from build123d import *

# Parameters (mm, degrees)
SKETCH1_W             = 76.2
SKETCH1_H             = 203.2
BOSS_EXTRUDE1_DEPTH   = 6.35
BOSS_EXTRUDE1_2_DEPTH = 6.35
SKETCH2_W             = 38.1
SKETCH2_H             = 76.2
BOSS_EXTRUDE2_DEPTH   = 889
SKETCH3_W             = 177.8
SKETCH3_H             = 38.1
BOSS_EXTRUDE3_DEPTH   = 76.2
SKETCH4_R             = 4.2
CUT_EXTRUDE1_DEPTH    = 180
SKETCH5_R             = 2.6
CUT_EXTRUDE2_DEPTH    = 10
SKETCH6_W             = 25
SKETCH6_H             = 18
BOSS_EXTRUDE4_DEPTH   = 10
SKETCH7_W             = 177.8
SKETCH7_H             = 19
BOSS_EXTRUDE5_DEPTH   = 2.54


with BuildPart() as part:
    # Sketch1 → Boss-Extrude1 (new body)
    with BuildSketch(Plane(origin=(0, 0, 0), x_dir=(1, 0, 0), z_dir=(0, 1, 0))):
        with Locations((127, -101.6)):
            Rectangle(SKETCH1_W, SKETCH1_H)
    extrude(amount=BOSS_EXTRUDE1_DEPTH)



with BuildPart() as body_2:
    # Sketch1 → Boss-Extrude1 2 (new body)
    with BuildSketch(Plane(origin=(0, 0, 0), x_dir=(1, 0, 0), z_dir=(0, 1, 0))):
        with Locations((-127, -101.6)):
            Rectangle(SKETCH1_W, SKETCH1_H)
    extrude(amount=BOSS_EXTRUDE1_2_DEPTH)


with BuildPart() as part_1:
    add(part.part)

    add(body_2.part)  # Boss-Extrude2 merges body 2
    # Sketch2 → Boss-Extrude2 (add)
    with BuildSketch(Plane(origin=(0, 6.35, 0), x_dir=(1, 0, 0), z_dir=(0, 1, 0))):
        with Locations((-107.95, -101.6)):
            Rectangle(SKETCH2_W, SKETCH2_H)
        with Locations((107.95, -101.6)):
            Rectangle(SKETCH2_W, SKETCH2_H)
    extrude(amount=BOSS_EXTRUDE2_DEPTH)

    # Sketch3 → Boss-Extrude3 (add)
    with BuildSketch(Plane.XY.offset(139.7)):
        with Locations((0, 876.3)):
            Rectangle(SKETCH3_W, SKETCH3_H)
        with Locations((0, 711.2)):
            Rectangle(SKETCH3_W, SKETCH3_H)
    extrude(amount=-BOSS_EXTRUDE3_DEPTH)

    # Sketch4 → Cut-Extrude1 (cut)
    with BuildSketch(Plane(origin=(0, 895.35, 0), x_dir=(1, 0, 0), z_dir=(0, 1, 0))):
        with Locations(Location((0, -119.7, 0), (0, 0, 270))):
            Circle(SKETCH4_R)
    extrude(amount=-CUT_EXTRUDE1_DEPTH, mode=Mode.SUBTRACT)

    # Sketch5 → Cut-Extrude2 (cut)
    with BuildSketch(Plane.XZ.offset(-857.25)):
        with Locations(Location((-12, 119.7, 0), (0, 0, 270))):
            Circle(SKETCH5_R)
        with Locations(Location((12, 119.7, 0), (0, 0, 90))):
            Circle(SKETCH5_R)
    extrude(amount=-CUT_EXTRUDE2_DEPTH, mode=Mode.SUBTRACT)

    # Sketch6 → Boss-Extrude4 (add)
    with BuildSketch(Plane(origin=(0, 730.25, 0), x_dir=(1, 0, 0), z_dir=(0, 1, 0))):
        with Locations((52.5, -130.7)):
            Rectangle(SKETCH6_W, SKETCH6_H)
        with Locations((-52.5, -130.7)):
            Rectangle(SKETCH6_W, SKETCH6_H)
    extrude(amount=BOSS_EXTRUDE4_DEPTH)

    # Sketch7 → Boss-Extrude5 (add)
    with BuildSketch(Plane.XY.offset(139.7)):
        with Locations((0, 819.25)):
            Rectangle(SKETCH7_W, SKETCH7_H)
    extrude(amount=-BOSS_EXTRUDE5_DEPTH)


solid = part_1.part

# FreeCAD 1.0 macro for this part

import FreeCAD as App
import Part
import Sketcher
from FreeCAD import Vector


def add_polygon(sketch, points):
    """Adds a closed chain of lines whose ends are joined by coincident constraints."""
    first, n = sketch.GeometryCount, len(points)
    for a, b in zip(points, points[1:] + points[:1]):
        sketch.addGeometry(Part.LineSegment(App.Vector(*a, 0), App.Vector(*b, 0)), False)
    for i in range(n):
        sketch.addConstraint(Sketcher.Constraint("Coincident", first + i, 2, first + (i + 1) % n, 1))

doc = App.newDocument("Part")
params = doc.addObject("Spreadsheet::Sheet", "Params")
for row, (alias, value) in enumerate([
    ("sketch1_width", "76.2 mm"),
    ("sketch1_height", "203.2 mm"),
    ("pad1_length", "6.35 mm"),
    ("sketch2_width", "76.2 mm"),
    ("sketch2_height", "203.2 mm"),
    ("pad2_length", "6.35 mm"),
    ("sketch3_width", "38.1 mm"),
    ("sketch3_height", "76.2 mm"),
    ("pad3_length", "889 mm"),
    ("sketch4_width", "177.8 mm"),
    ("sketch4_height", "38.1 mm"),
    ("pad4_length", "76.2 mm"),
    ("sketch5_diameter", "8.4 mm"),
    ("pocket1_length", "180 mm"),
    ("sketch6_diameter", "5.2 mm"),
    ("pocket2_length", "10 mm"),
    ("sketch7_width", "25 mm"),
    ("sketch7_height", "18 mm"),
    ("pad5_length", "10 mm"),
    ("sketch8_height", "19 mm"),
    ("sketch8_width", "177.8 mm"),
    ("pad6_length", "2.54 mm"),
], start=1):
    params.set(f"A{row}", alias)
    params.set(f"B{row}", "=" + value)
    params.setAlias(f"B{row}", alias)

body = doc.addObject("PartDesign::Body", "Body")

sketch1 = doc.addObject("Sketcher::SketchObject", "Sketch")
body.addObject(sketch1)
sketch1.AttachmentSupport = (doc.XZ_Plane, [""])
sketch1.MapMode = "FlatFace"
add_polygon(sketch1, [(89, 0), (89, 203), (165, 203), (165, 0)])
sketch1.addConstraint([
    Sketcher.Constraint("Vertical", 0),
    Sketcher.Constraint("Horizontal", 1),
    Sketcher.Constraint("Vertical", 2),
    Sketcher.Constraint("Horizontal", 3),
    Sketcher.Constraint("PointOnObject", 2, 2, -1),
    Sketcher.Constraint("DistanceX", 1, 1, 1, 2, 76.2),
    Sketcher.Constraint("DistanceY", 0, 1, 0, 2, 203.2),
    Sketcher.Constraint("DistanceX", -1, 1, 0, 2, 88.9),
])
sketch1.setExpression("Constraints[9]", "Params.sketch1_width")
sketch1.setExpression("Constraints[10]", "Params.sketch1_height")
pad1 = doc.addObject("PartDesign::Pad", "Pad")
body.addObject(pad1)
pad1.Profile = sketch1
pad1.setExpression("Length", "Params.pad1_length")
pad1.Reversed = True
body2 = doc.addObject("PartDesign::Body", "Body001")

sketch2 = doc.addObject("Sketcher::SketchObject", "Sketch001")
body2.addObject(sketch2)
sketch2.AttachmentSupport = (doc.getObject("XZ_Plane001"), [""])
sketch2.MapMode = "FlatFace"
add_polygon(sketch2, [(-165, 0), (-165, 203), (-89, 203), (-89, 0)])
sketch2.addConstraint([
    Sketcher.Constraint("Vertical", 0),
    Sketcher.Constraint("Horizontal", 1),
    Sketcher.Constraint("Vertical", 2),
    Sketcher.Constraint("Horizontal", 3),
    Sketcher.Constraint("PointOnObject", 2, 2, -1),
    Sketcher.Constraint("DistanceX", 1, 1, 1, 2, 76.2),
    Sketcher.Constraint("DistanceY", 0, 1, 0, 2, 203.2),
    Sketcher.Constraint("DistanceX", 0, 2, -1, 1, 165.1),
])
sketch2.setExpression("Constraints[9]", "Params.sketch2_width")
sketch2.setExpression("Constraints[10]", "Params.sketch2_height")
pad2 = doc.addObject("PartDesign::Pad", "Pad001")
body2.addObject(pad2)
pad2.Profile = sketch2
pad2.setExpression("Length", "Params.pad2_length")
pad2.Reversed = True
body.AllowCompound = True
doc.recompute()

boolean = doc.addObject("PartDesign::Boolean", "Boolean")
body.addObject(boolean)
boolean.Type = "Fuse"
boolean.addObjects([body2])

sketch3 = doc.addObject("Sketcher::SketchObject", "Sketch002")
body.addObject(sketch3)
sketch3.AttachmentSupport = (doc.XZ_Plane, [""])
sketch3.MapMode = "FlatFace"
sketch3.AttachmentOffset = App.Placement(Vector(0, 0, -6.35), App.Rotation())
add_polygon(sketch3, [(-127, 64), (-127, 140), (-89, 140), (-89, 64)])
add_polygon(sketch3, [(89, 64), (89, 140), (127, 140), (127, 64)])
sketch3.addConstraint([
    Sketcher.Constraint("Vertical", 0),
    Sketcher.Constraint("Horizontal", 1),
    Sketcher.Constraint("Vertical", 2),
    Sketcher.Constraint("Horizontal", 3),
    Sketcher.Constraint("Vertical", 4),
    Sketcher.Constraint("Horizontal", 5),
    Sketcher.Constraint("Vertical", 6),
    Sketcher.Constraint("Horizontal", 7),
    Sketcher.Constraint("Symmetric", 1, 2, 4, 2, -2),
    Sketcher.Constraint("Symmetric", 3, 2, 6, 2, -2),
    Sketcher.Constraint("DistanceX", 1, 1, 1, 2, 38.1),
    Sketcher.Constraint("DistanceY", 0, 1, 0, 2, 76.2),
    Sketcher.Constraint("DistanceX", 0, 2, -1, 1, 127.0),
    Sketcher.Constraint("DistanceY", -1, 1, 0, 2, 139.7),
])
sketch3.setExpression("Constraints[18]", "Params.sketch3_width")
sketch3.setExpression("Constraints[19]", "Params.sketch3_height")
pad3 = doc.addObject("PartDesign::Pad", "Pad002")
body.addObject(pad3)
pad3.Profile = sketch3
pad3.setExpression("Length", "Params.pad3_length")
pad3.Reversed = True

sketch4 = doc.addObject("Sketcher::SketchObject", "Sketch003")
body.addObject(sketch4)
sketch4.AttachmentSupport = (doc.XY_Plane, [""])
sketch4.MapMode = "FlatFace"
sketch4.AttachmentOffset = App.Placement(Vector(0, 0, 139.7), App.Rotation())
add_polygon(sketch4, [(-89, 895), (-89, 857), (89, 857), (89, 895)])
add_polygon(sketch4, [(-89, 730), (-89, 692), (89, 692), (89, 730)])
sketch4.addConstraint([
    Sketcher.Constraint("Vertical", 0),
    Sketcher.Constraint("Horizontal", 1),
    Sketcher.Constraint("Vertical", 2),
    Sketcher.Constraint("Horizontal", 3),
    Sketcher.Constraint("Vertical", 4),
    Sketcher.Constraint("Horizontal", 5),
    Sketcher.Constraint("Vertical", 6),
    Sketcher.Constraint("Horizontal", 7),
    Sketcher.Constraint("Vertical", 3, 2, 4, 2),
    Sketcher.Constraint("Vertical", 2, 2, 5, 2),
    Sketcher.Constraint("Equal", 2, 4),
    Sketcher.Constraint("DistanceX", 1, 1, 1, 2, 177.8),
    Sketcher.Constraint("DistanceY", 0, 2, 0, 1, 38.1),
    Sketcher.Constraint("DistanceY", 6, 2, 1, 2, 127.0),
    Sketcher.Constraint("DistanceX", 0, 2, -1, 1, 88.9),
    Sketcher.Constraint("DistanceY", -1, 1, 0, 2, 857.25),
])
sketch4.setExpression("Constraints[19]", "Params.sketch4_width")
sketch4.setExpression("Constraints[20]", "Params.sketch4_height")
pad4 = doc.addObject("PartDesign::Pad", "Pad003")
body.addObject(pad4)
pad4.Profile = sketch4
pad4.setExpression("Length", "Params.pad4_length")
pad4.Reversed = True

sketch5 = doc.addObject("Sketcher::SketchObject", "Sketch004")
body.addObject(sketch5)
sketch5.AttachmentSupport = (doc.XZ_Plane, [""])
sketch5.MapMode = "FlatFace"
sketch5.AttachmentOffset = App.Placement(Vector(0, 0, -895.35), App.Rotation())
sketch5.addGeometry(Part.Circle(Vector(0, 119.7, 0), Vector(0, 0, 1), 4.2), False)
sketch5.addConstraint([
    Sketcher.Constraint("PointOnObject", 0, 3, -2),
    Sketcher.Constraint("Diameter", 0, 8.4),
    Sketcher.Constraint("DistanceY", -1, 1, 0, 3, 119.7),
])
sketch5.setExpression("Constraints[1]", "Params.sketch5_diameter")
pocket1 = doc.addObject("PartDesign::Pocket", "Pocket")
body.addObject(pocket1)
pocket1.Profile = sketch5
pocket1.setExpression("Length", "Params.pocket1_length")
pocket1.Reversed = True

sketch6 = doc.addObject("Sketcher::SketchObject", "Sketch005")
body.addObject(sketch6)
sketch6.AttachmentSupport = (doc.XZ_Plane, [""])
sketch6.MapMode = "FlatFace"
sketch6.AttachmentOffset = App.Placement(Vector(0, 0, -857.25), App.Rotation())
sketch6.addGeometry([
    Part.Circle(Vector(-12, 119.7, 0), Vector(0, 0, 1), 2.6),
    Part.Circle(Vector(12, 119.7, 0), Vector(0, 0, 1), 2.6),
], False)
sketch6.addConstraint([
    Sketcher.Constraint("Equal", 0, 1),
    Sketcher.Constraint("Symmetric", 0, 3, 1, 3, -2),
    Sketcher.Constraint("Diameter", 0, 5.2),
    Sketcher.Constraint("DistanceX", 0, 3, -1, 1, 12.0),
    Sketcher.Constraint("DistanceY", -1, 1, 0, 3, 119.7),
])
sketch6.setExpression("Constraints[2]", "Params.sketch6_diameter")
pocket2 = doc.addObject("PartDesign::Pocket", "Pocket001")
body.addObject(pocket2)
pocket2.Profile = sketch6
pocket2.setExpression("Length", "Params.pocket2_length")

sketch7 = doc.addObject("Sketcher::SketchObject", "Sketch006")
body.addObject(sketch7)
sketch7.AttachmentSupport = (doc.XZ_Plane, [""])
sketch7.MapMode = "FlatFace"
sketch7.AttachmentOffset = App.Placement(Vector(0, 0, -730.25), App.Rotation())
add_polygon(sketch7, [(40, 122), (40, 140), (65, 140), (65, 122)])
add_polygon(sketch7, [(-65, 122), (-65, 140), (-40, 140), (-40, 122)])
sketch7.addConstraint([
    Sketcher.Constraint("Vertical", 0),
    Sketcher.Constraint("Horizontal", 1),
    Sketcher.Constraint("Vertical", 2),
    Sketcher.Constraint("Horizontal", 3),
    Sketcher.Constraint("Vertical", 4),
    Sketcher.Constraint("Horizontal", 5),
    Sketcher.Constraint("Vertical", 6),
    Sketcher.Constraint("Horizontal", 7),
    Sketcher.Constraint("Symmetric", 1, 2, 4, 2, -2),
    Sketcher.Constraint("Symmetric", 3, 2, 6, 2, -2),
    Sketcher.Constraint("DistanceX", 1, 1, 1, 2, 25.0),
    Sketcher.Constraint("DistanceY", 0, 1, 0, 2, 18.0),
    Sketcher.Constraint("DistanceX", -1, 1, 0, 2, 40.0),
    Sketcher.Constraint("DistanceY", -1, 1, 0, 2, 139.7),
])
sketch7.setExpression("Constraints[18]", "Params.sketch7_width")
sketch7.setExpression("Constraints[19]", "Params.sketch7_height")
pad5 = doc.addObject("PartDesign::Pad", "Pad004")
body.addObject(pad5)
pad5.Profile = sketch7
pad5.setExpression("Length", "Params.pad5_length")
pad5.Reversed = True

sketch8 = doc.addObject("Sketcher::SketchObject", "Sketch007")
body.addObject(sketch8)
sketch8.AttachmentSupport = (doc.XY_Plane, [""])
sketch8.MapMode = "FlatFace"
sketch8.AttachmentOffset = App.Placement(Vector(0, 0, 139.7), App.Rotation())
add_polygon(sketch8, [(-89, 829), (-89, 810), (89, 810), (89, 829)])
sketch8.addConstraint([
    Sketcher.Constraint("Vertical", 0),
    Sketcher.Constraint("Horizontal", 1),
    Sketcher.Constraint("Vertical", 2),
    Sketcher.Constraint("Horizontal", 3),
    Sketcher.Constraint("DistanceY", 0, 2, 0, 1, 19.0),
    Sketcher.Constraint("DistanceX", 1, 1, 1, 2, 177.8),
    Sketcher.Constraint("DistanceX", 0, 2, -1, 1, 88.9),
    Sketcher.Constraint("DistanceY", -1, 1, 0, 2, 809.75),
])
sketch8.setExpression("Constraints[8]", "Params.sketch8_height")
sketch8.setExpression("Constraints[9]", "Params.sketch8_width")
pad6 = doc.addObject("PartDesign::Pad", "Pad005")
body.addObject(pad6)
pad6.Profile = sketch8
pad6.setExpression("Length", "Params.pad6_length")
pad6.Reversed = True

doc.recompute()
